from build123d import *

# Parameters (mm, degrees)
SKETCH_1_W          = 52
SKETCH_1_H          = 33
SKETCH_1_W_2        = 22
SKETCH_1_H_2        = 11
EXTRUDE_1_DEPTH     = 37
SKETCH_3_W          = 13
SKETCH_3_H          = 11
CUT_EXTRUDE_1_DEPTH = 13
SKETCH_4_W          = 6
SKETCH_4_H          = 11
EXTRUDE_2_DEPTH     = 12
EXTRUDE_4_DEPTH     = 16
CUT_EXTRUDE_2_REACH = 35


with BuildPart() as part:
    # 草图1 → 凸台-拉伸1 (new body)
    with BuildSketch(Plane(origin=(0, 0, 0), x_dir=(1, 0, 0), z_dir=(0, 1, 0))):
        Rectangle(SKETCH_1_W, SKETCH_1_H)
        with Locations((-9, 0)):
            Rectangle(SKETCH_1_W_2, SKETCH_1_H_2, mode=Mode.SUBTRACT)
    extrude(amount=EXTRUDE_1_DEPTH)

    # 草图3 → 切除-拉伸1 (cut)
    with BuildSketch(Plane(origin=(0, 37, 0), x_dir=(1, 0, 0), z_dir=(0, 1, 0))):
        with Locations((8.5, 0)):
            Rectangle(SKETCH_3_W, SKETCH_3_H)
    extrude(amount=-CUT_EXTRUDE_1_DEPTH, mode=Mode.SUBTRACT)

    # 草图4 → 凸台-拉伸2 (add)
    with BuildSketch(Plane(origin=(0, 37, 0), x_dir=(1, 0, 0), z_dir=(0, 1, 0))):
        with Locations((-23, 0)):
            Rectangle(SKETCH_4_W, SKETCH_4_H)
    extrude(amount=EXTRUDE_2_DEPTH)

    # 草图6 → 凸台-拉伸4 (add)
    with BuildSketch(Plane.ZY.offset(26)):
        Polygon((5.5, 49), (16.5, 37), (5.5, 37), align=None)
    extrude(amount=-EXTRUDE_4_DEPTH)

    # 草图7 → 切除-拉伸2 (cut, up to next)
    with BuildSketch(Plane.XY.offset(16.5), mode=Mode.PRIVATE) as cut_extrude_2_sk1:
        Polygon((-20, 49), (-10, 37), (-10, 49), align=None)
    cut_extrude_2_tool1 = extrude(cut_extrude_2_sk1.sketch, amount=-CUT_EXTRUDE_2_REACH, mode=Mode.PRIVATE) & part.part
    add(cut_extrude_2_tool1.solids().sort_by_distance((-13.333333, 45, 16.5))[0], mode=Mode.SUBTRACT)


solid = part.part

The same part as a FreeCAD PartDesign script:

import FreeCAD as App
import Part
import Sketcher


def add_polygon(sketch, points):
    """Adds a closed chain of lines whose ends are joined by coincident constraints."""
    first, n = sketch.GeometryCount, len(points)
    for a, b in zip(points, points[1:] + points[:1]):
        sketch.addGeometry(Part.LineSegment(App.Vector(*a, 0), App.Vector(*b, 0)), False)
    for i in range(n):
        sketch.addConstraint(Sketcher.Constraint("Coincident", first + i, 2, first + (i + 1) % n, 1))

doc = App.newDocument("Part")
body = doc.addObject("PartDesign::Body", "Body")

# Sketch on XZ plane
sketch1 = body.newObject("Sketcher::SketchObject", "Sketch")
sketch1.AttachmentSupport = (doc.getObject("XZ_Plane"), [""])
sketch1.MapMode = "FlatFace"
add_polygon(sketch1, [(-26, -16), (-26, 16), (26, 16), (26, -16)])  # lines 0-3
add_polygon(sketch1, [(2, 6), (-20, 6), (-20, -6), (2, -6)])  # lines 4-7
sketch1.addConstraint(Sketcher.Constraint("Vertical", 0))
sketch1.addConstraint(Sketcher.Constraint("Horizontal", 1))
sketch1.addConstraint(Sketcher.Constraint("Vertical", 2))
sketch1.addConstraint(Sketcher.Constraint("Horizontal", 3))
sketch1.addConstraint(Sketcher.Constraint("Horizontal", 4))
sketch1.addConstraint(Sketcher.Constraint("Vertical", 5))
sketch1.addConstraint(Sketcher.Constraint("Horizontal", 6))
sketch1.addConstraint(Sketcher.Constraint("Vertical", 7))
sketch1.addConstraint(Sketcher.Constraint("Symmetric", 0, 2, 2, 2, -1, 1))
sketch1.addConstraint(Sketcher.Constraint("DistanceX", 1, 1, 1, 2, 52.0))
sketch1.addConstraint(Sketcher.Constraint("DistanceX", 4, 2, 4, 1, 22.0))
sketch1.addConstraint(Sketcher.Constraint("DistanceY", 0, 1, 0, 2, 33.0))
sketch1.addConstraint(Sketcher.Constraint("DistanceY", 5, 2, 5, 1, 11.0))
sketch1.addConstraint(Sketcher.Constraint("DistanceX", 4, 2, -1, 1, 20.0))
sketch1.addConstraint(Sketcher.Constraint("DistanceY", 4, 2, 0, 2, 11.0))
pad1 = body.newObject("PartDesign::Pad", "Pad")
pad1.Profile = sketch1
pad1.Length = 37
pad1.Reversed = True

# Sketch on XZ plane
sketch2 = body.newObject("Sketcher::SketchObject", "Sketch001")
sketch2.AttachmentSupport = (doc.getObject("XZ_Plane"), [""])
sketch2.MapMode = "FlatFace"
sketch2.AttachmentOffset = App.Placement(App.Vector(0, 0, -37), App.Rotation())
add_polygon(sketch2, [(2, -6), (2, 6), (15, 6), (15, -6)])  # lines 0-3
sketch2.addConstraint(Sketcher.Constraint("Vertical", 0))
sketch2.addConstraint(Sketcher.Constraint("Horizontal", 1))
sketch2.addConstraint(Sketcher.Constraint("Vertical", 2))
sketch2.addConstraint(Sketcher.Constraint("Horizontal", 3))
sketch2.addConstraint(Sketcher.Constraint("DistanceX", 1, 1, 1, 2, 13.0))
sketch2.addConstraint(Sketcher.Constraint("DistanceY", 0, 1, 0, 2, 11.0))
sketch2.addConstraint(Sketcher.Constraint("DistanceX", -1, 1, 0, 2, 2.0))
sketch2.addConstraint(Sketcher.Constraint("DistanceY", -1, 1, 0, 2, 5.5))
pocket1 = body.newObject("PartDesign::Pocket", "Pocket")
pocket1.Profile = sketch2
pocket1.Length = 13
pocket1.Reversed = True

# Sketch on XZ plane
sketch3 = body.newObject("Sketcher::SketchObject", "Sketch002")
sketch3.AttachmentSupport = (doc.getObject("XZ_Plane"), [""])
sketch3.MapMode = "FlatFace"
sketch3.AttachmentOffset = App.Placement(App.Vector(0, 0, -37), App.Rotation())
add_polygon(sketch3, [(-26, -6), (-26, 6), (-20, 6), (-20, -6)])  # lines 0-3
sketch3.addConstraint(Sketcher.Constraint("Vertical", 0))
sketch3.addConstraint(Sketcher.Constraint("Horizontal", 1))
sketch3.addConstraint(Sketcher.Constraint("Vertical", 2))
sketch3.addConstraint(Sketcher.Constraint("Horizontal", 3))
sketch3.addConstraint(Sketcher.Constraint("DistanceX", 1, 1, 1, 2, 6.0))
sketch3.addConstraint(Sketcher.Constraint("DistanceY", 0, 1, 0, 2, 11.0))
sketch3.addConstraint(Sketcher.Constraint("DistanceX", 0, 2, -1, 1, 26.0))
sketch3.addConstraint(Sketcher.Constraint("DistanceY", -1, 1, 0, 2, 5.5))
pad2 = body.newObject("PartDesign::Pad", "Pad001")
pad2.Profile = sketch3
pad2.Length = 12
pad2.Reversed = True

# Sketch on YZ plane
sketch4 = body.newObject("Sketcher::SketchObject", "Sketch003")
sketch4.AttachmentSupport = (doc.getObject("YZ_Plane"), [""])
sketch4.MapMode = "FlatFace"
sketch4.AttachmentOffset = App.Placement(App.Vector(0, 0, -26), App.Rotation())
add_polygon(sketch4, [(37, 16), (49, 6), (37, 6)])  # lines 0-2
sketch4.addConstraint(Sketcher.Constraint("Horizontal", 1))
sketch4.addConstraint(Sketcher.Constraint("Vertical", 2))
sketch4.addConstraint(Sketcher.Constraint("DistanceX", 1, 2, 1, 1, 12.0))
sketch4.addConstraint(Sketcher.Constraint("DistanceY", 2, 1, 2, 2, 11.0))
sketch4.addConstraint(Sketcher.Constraint("DistanceX", -1, 1, 0, 2, 49.0))
sketch4.addConstraint(Sketcher.Constraint("DistanceY", -1, 1, 0, 2, 5.5))
pad3 = body.newObject("PartDesign::Pad", "Pad002")
pad3.Profile = sketch4
pad3.Length = 16

# Sketch on XY plane
sketch5 = body.newObject("Sketcher::SketchObject", "Sketch004")
sketch5.AttachmentSupport = (doc.getObject("XY_Plane"), [""])
sketch5.MapMode = "FlatFace"
sketch5.AttachmentOffset = App.Placement(App.Vector(0, 0, 16.5), App.Rotation())
add_polygon(sketch5, [(-20, 49), (-10, 37), (-10, 49)])  # lines 0-2
sketch5.addConstraint(Sketcher.Constraint("Vertical", 1))
sketch5.addConstraint(Sketcher.Constraint("Horizontal", 2))
sketch5.addConstraint(Sketcher.Constraint("DistanceX", 2, 2, 2, 1, 10.0))
sketch5.addConstraint(Sketcher.Constraint("DistanceY", 1, 1, 1, 2, 12.0))
sketch5.addConstraint(Sketcher.Constraint("DistanceX", 0, 2, -1, 1, 10.0))
sketch5.addConstraint(Sketcher.Constraint("DistanceY", -1, 1, 0, 2, 37.0))
pocket2 = body.newObject("PartDesign::Pocket", "Pocket001")
pocket2.Profile = sketch5
pocket2.Length = 11

doc.recompute()
